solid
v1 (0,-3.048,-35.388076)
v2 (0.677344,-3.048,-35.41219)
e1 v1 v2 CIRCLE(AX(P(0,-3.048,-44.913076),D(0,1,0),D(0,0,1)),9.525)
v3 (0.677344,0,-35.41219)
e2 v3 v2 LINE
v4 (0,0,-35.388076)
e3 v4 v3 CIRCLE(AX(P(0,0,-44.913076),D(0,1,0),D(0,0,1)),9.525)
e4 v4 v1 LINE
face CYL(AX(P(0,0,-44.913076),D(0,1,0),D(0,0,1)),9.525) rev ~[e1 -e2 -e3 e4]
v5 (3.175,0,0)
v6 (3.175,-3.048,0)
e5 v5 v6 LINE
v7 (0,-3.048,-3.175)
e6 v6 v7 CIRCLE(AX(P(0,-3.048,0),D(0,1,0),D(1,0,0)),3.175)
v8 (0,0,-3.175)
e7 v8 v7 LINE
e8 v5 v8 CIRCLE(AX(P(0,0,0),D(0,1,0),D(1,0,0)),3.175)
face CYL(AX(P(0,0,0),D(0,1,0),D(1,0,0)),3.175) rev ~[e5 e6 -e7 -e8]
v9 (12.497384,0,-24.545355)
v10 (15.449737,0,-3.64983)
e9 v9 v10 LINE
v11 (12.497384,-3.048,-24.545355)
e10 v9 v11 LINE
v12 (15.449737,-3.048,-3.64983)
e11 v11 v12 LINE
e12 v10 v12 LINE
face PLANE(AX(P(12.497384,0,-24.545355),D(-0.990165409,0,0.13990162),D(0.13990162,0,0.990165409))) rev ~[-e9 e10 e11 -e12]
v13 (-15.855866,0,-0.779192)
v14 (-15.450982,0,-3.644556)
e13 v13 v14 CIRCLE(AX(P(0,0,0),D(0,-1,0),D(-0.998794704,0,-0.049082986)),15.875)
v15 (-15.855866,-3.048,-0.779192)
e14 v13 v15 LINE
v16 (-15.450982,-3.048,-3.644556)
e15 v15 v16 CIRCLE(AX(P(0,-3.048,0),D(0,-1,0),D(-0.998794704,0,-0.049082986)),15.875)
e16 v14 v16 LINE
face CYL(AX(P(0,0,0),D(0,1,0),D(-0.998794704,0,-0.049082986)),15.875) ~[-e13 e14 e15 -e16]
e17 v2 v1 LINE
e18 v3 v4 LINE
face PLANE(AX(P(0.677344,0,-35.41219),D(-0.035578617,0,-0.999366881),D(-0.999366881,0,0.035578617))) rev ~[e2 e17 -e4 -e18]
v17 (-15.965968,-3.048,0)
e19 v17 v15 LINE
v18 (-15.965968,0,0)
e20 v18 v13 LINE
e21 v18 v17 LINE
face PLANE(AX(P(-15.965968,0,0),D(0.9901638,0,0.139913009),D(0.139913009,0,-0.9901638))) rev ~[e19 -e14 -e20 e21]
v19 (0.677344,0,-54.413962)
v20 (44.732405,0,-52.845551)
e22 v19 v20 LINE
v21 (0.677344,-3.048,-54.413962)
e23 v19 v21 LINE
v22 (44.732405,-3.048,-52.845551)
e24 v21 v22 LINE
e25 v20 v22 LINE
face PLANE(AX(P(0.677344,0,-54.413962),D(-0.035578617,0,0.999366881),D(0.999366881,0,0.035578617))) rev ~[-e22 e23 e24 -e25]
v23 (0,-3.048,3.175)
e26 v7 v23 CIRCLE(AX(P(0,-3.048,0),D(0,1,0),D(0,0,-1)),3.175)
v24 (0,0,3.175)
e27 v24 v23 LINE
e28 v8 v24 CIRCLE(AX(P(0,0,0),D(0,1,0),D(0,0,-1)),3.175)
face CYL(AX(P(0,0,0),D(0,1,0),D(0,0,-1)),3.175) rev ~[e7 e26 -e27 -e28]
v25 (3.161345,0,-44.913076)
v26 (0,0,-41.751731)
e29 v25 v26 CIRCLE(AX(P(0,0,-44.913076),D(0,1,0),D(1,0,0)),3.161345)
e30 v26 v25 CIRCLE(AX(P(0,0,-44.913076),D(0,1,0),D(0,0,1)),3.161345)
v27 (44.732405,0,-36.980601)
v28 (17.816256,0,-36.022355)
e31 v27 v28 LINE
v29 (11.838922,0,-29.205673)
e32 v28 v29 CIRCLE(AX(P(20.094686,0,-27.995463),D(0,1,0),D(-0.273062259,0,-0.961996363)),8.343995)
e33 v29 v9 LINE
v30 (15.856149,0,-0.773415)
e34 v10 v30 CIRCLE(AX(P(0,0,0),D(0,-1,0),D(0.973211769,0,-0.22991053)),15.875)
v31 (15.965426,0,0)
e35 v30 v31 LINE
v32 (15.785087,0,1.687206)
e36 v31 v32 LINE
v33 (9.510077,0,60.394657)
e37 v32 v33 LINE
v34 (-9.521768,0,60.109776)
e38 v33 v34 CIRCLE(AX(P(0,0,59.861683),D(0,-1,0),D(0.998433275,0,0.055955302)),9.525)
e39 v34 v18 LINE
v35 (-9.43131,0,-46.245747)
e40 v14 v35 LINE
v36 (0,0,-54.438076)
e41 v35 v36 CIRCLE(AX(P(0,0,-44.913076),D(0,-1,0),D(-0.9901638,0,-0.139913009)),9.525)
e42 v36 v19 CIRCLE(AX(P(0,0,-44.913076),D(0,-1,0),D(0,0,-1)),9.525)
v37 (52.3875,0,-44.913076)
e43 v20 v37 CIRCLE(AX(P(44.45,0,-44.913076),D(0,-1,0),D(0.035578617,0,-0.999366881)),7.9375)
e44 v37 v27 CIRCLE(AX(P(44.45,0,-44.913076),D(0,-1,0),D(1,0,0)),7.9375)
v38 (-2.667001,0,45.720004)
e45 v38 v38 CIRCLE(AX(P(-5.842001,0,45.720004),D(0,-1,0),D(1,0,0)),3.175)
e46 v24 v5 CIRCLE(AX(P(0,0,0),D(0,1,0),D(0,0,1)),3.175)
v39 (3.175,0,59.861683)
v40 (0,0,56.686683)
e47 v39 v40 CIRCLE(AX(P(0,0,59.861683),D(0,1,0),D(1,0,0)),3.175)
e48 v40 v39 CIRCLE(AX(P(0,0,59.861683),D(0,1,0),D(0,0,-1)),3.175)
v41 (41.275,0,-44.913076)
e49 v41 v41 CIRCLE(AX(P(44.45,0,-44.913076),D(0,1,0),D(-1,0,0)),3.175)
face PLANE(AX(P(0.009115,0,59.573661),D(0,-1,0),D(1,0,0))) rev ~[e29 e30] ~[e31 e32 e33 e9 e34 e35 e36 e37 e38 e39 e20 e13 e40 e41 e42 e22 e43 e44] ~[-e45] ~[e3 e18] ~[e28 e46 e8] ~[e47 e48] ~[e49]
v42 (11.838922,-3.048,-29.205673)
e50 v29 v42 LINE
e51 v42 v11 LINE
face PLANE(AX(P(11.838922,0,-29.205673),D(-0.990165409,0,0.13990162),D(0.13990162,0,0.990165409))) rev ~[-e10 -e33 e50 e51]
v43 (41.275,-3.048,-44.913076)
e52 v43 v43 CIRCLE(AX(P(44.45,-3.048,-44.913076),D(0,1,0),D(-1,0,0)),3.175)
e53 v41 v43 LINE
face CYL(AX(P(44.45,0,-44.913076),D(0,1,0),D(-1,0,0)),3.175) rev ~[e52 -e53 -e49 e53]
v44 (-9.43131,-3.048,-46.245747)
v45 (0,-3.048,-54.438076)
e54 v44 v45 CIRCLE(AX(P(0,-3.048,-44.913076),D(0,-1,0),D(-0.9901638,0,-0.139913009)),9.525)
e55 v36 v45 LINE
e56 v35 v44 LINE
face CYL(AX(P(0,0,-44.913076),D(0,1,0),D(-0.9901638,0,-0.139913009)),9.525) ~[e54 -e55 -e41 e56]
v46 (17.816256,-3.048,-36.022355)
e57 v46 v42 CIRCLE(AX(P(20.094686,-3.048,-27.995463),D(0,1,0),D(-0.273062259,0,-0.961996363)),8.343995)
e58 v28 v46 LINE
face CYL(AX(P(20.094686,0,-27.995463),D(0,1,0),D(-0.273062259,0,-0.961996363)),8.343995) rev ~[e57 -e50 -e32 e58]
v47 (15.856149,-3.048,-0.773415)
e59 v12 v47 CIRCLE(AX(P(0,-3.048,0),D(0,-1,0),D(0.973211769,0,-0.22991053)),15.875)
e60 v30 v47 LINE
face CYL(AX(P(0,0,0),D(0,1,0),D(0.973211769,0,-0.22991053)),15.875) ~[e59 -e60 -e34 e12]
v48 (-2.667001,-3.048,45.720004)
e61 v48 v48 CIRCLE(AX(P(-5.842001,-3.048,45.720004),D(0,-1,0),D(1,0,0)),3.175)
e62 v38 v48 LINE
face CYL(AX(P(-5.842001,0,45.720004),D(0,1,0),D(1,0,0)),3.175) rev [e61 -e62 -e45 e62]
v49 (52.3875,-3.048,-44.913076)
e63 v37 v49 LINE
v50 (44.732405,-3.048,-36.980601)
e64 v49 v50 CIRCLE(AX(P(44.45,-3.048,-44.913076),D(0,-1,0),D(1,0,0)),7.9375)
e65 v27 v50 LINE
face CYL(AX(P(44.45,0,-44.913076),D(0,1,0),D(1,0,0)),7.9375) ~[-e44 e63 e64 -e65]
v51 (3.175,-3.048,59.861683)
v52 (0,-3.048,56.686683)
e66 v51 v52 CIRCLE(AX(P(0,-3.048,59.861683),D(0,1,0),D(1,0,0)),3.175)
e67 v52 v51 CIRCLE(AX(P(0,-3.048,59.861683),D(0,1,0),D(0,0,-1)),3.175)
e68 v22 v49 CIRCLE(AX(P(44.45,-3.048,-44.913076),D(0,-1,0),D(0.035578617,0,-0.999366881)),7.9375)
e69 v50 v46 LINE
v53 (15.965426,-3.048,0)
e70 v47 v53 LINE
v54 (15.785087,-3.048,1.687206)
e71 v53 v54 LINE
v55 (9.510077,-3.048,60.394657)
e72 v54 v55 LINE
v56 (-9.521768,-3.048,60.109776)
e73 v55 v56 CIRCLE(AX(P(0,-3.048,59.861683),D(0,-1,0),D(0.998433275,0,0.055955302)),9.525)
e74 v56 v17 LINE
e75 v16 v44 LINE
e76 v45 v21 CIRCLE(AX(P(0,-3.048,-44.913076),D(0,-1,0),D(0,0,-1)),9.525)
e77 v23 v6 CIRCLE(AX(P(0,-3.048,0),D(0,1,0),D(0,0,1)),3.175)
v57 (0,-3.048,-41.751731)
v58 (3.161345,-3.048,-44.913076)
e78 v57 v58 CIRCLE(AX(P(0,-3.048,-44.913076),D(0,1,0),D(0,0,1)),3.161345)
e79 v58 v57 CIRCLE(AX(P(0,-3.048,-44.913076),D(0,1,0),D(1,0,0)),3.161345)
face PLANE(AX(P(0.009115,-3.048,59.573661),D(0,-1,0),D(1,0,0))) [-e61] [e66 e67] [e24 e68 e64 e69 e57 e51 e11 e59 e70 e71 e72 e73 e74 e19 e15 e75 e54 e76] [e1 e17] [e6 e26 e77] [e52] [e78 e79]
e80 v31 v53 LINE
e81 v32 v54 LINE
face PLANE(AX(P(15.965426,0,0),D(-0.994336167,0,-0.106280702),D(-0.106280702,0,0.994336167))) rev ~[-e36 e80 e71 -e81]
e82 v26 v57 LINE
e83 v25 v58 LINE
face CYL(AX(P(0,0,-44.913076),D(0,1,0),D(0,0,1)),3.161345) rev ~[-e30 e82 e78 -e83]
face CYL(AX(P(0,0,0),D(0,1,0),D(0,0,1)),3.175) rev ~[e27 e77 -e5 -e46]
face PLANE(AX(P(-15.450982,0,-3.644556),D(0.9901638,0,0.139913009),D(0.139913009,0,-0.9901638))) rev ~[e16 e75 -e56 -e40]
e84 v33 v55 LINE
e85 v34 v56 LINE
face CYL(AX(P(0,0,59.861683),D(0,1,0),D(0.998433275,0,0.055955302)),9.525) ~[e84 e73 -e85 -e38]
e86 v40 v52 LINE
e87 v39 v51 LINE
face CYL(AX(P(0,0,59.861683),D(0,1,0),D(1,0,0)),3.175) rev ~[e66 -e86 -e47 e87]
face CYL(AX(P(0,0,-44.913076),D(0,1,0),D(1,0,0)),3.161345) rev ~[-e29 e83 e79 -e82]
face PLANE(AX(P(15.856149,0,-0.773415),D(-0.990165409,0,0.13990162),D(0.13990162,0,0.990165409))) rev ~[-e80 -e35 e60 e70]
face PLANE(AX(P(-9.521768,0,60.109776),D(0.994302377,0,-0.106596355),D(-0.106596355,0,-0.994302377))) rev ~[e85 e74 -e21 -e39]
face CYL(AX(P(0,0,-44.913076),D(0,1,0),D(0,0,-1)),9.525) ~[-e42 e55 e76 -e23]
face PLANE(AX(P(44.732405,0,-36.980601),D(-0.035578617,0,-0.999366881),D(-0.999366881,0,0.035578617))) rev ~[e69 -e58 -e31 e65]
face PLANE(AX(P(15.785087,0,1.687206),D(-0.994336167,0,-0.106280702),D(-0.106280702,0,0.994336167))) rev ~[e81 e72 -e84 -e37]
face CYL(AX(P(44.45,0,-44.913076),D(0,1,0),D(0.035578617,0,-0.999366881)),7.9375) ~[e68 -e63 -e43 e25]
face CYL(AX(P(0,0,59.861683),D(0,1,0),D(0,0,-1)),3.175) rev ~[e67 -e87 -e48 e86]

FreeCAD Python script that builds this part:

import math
import FreeCAD as App
import Part
import Sketcher

V = App.Vector
Q = App.Units.Quantity

doc = App.newDocument("Part")
body = doc.addObject("PartDesign::Body", "Body")

sketch1 = body.newObject("Sketcher::SketchObject", "Sketch")
sketch1.AttachmentSupport = (doc.getObject("XZ_Plane"), [""])
sketch1.MapMode = "FlatFace"
sketch1.addGeometry([
    Part.LineSegment(V(-15.5, -3.6, 0), V(-9.4, -46.2, 0)),
    Part.ArcOfCircle(Part.Circle(V(0, -44.9, 0), V(0, 0, 1), 9.5), math.radians(-172), math.radians(-90)),
    Part.ArcOfCircle(Part.Circle(V(0, -44.9, 0), V(0, 0, 1), 9.5), math.radians(-90), math.radians(-85.92)),
    Part.LineSegment(V(0.7, -54.4, 0), V(44.7, -52.8, 0)),
    Part.ArcOfCircle(Part.Circle(V(44.5, -44.9, 0), V(0, 0, 1), 7.9), math.radians(-88), math.radians(0)),
    Part.ArcOfCircle(Part.Circle(V(44.5, -44.9, 0), V(0, 0, 1), 7.9), math.radians(0), math.radians(88)),
    Part.LineSegment(V(44.7, -37, 0), V(17.8, -36, 0)),
    Part.ArcOfCircle(Part.Circle(V(20.1, -28, 0), V(0, 0, 1), 8.3), math.radians(-172), math.radians(-106)),
    Part.LineSegment(V(11.8, -29.2, 0), V(12.5, -24.5, 0)),
    Part.LineSegment(V(12.5, -24.5, 0), V(15.4, -3.6, 0)),
    Part.ArcOfCircle(Part.Circle(V(0, 0, 0), V(0, 0, 1), 15.9), math.radians(-13.29), math.radians(-2.79)),
    Part.LineSegment(V(15.9, -0.8, 0), V(16, 0, 0)),
    Part.LineSegment(V(16, 0, 0), V(15.8, 1.7, 0)),
    Part.LineSegment(V(15.8, 1.7, 0), V(9.5, 60.4, 0)),
    Part.ArcOfCircle(Part.Circle(V(0, 59.9, 0), V(0, 0, 1), 9.5), math.radians(3), math.radians(179)),
    Part.LineSegment(V(-9.5, 60.1, 0), V(-16, 0, 0)),
    Part.LineSegment(V(-16, 0, 0), V(-15.9, -0.8, 0)),
    Part.ArcOfCircle(Part.Circle(V(0, 0, 0), V(0, 0, 1), 15.9), math.radians(-177.19), math.radians(-166.73)),
    Part.ArcOfCircle(Part.Circle(V(0, -44.9, 0), V(0, 0, 1), 3.2), math.radians(0), math.radians(90)),
    Part.ArcOfCircle(Part.Circle(V(0, -44.9, 0), V(0, 0, 1), 3.2), math.radians(90), math.radians(360)),
    Part.LineSegment(V(0.7, -35.4, 0), V(0, -35.4, 0)),
    Part.ArcOfCircle(Part.Circle(V(0, -44.9, 0), V(0, 0, 1), 9.5), math.radians(85.92), math.radians(90)),
    Part.ArcOfCircle(Part.Circle(V(0, 0, 0), V(0, 0, 1), 3.2), math.radians(0), math.radians(90)),
    Part.ArcOfCircle(Part.Circle(V(0, 0, 0), V(0, 0, 1), 3.2), math.radians(-90), math.radians(0)),
    Part.ArcOfCircle(Part.Circle(V(0, 0, 0), V(0, 0, 1), 3.2), math.radians(90), math.radians(270)),
    Part.Circle(V(44.5, -44.9, 0), V(0, 0, 1), 3.2),
    Part.Circle(V(-5.8, 45.7, 0), V(0, 0, 1), 3.2),
    Part.ArcOfCircle(Part.Circle(V(0, 59.9, 0), V(0, 0, 1), 3.2), math.radians(0), math.radians(270)),
    Part.ArcOfCircle(Part.Circle(V(0, 59.9, 0), V(0, 0, 1), 3.2), math.radians(-90), math.radians(0)),
], False)
sketch1.addConstraint([
    Sketcher.Constraint("Tangent", 0, 2, 1, 1),
    Sketcher.Constraint("Tangent", 1, 2, 2, 1),
    Sketcher.Constraint("Coincident", 2, 2, 3, 1),
    Sketcher.Constraint("Tangent", 3, 2, 4, 1),
    Sketcher.Constraint("Tangent", 4, 2, 5, 1),
    Sketcher.Constraint("Tangent", 5, 2, 6, 1),
    Sketcher.Constraint("Coincident", 6, 2, 7, 2),
    Sketcher.Constraint("Coincident", 7, 1, 8, 1),
    Sketcher.Constraint("Coincident", 8, 2, 9, 1),
    Sketcher.Constraint("Coincident", 9, 2, 10, 1),
    Sketcher.Constraint("Coincident", 10, 2, 11, 1),
    Sketcher.Constraint("Coincident", 11, 2, 12, 1),
    Sketcher.Constraint("Coincident", 12, 2, 13, 1),
    Sketcher.Constraint("Coincident", 13, 2, 14, 1),
    Sketcher.Constraint("Coincident", 14, 2, 15, 1),
    Sketcher.Constraint("Coincident", 15, 2, 16, 1),
    Sketcher.Constraint("Coincident", 16, 2, 17, 1),
    Sketcher.Constraint("Coincident", 17, 2, 0, 1),
    Sketcher.Constraint("Tangent", 18, 1, 19, 2),
    Sketcher.Constraint("Coincident", 19, 1, 18, 2),
    Sketcher.Constraint("Coincident", 20, 1, 21, 1),
    Sketcher.Constraint("Coincident", 21, 2, 20, 2),
    Sketcher.Constraint("Tangent", 22, 1, 23, 2),
    Sketcher.Constraint("Tangent", 23, 1, 24, 2),
    Sketcher.Constraint("Tangent", 24, 1, 22, 2),
    Sketcher.Constraint("Tangent", 27, 1, 28, 2),
    Sketcher.Constraint("Coincident", 28, 1, 27, 2),
    Sketcher.Constraint("Coincident", 10, 3, -1, 1),
    Sketcher.Constraint("Coincident", 17, 3, -1, 1),
    Sketcher.Constraint("Coincident", 22, 3, -1, 1),
    Sketcher.Constraint("Coincident", 18, 3, 1, 3),
    Sketcher.Constraint("Coincident", 21, 3, 1, 3),
    Sketcher.Constraint("Coincident", 25, 3, 4, 3),
    Sketcher.Constraint("Coincident", 27, 3, 14, 3),
    Sketcher.Constraint("Equal", 1, 2),
    Sketcher.Constraint("Equal", 4, 5),
    Sketcher.Constraint("Equal", 2, 14),
    Sketcher.Constraint("Equal", 10, 17),
    Sketcher.Constraint("Equal", 14, 21),
    Sketcher.Constraint("Equal", 24, 25),
    Sketcher.Constraint("Equal", 25, 26),
    Sketcher.Constraint("Equal", 26, 27),
    Sketcher.Constraint("PointOnObject", 1, 3, -2),
    Sketcher.Constraint("PointOnObject", 14, 3, -2),
    Sketcher.Constraint("PointOnObject", 1, 2, -2),
    Sketcher.Constraint("PointOnObject", 11, 2, -1),
    Sketcher.Constraint("PointOnObject", 15, 2, -1),
    Sketcher.Constraint("PointOnObject", 19, 1, -2),
    Sketcher.Constraint("PointOnObject", 21, 2, -2),
    Sketcher.Constraint("PointOnObject", 22, 1, -1),
    Sketcher.Constraint("PointOnObject", 23, 1, -2),
    Sketcher.Constraint("PointOnObject", 24, 1, -2),
    Sketcher.Constraint("PointOnObject", 28, 1, -2),
    Sketcher.Constraint("Parallel", 8, 9),
    Sketcher.Constraint("Parallel", 9, 11),
    Sketcher.Constraint("Parallel", 12, 13),
    Sketcher.Constraint("Parallel", 0, 16),
    Sketcher.Constraint("Parallel", 6, 20),
    Sketcher.Constraint("Horizontal", 2, 3, 4, 3),
    Sketcher.Constraint("Horizontal", 25, 3, 4, 2),
    Sketcher.Constraint("Horizontal", 4, 2, 18, 1),
    Sketcher.Constraint("Horizontal", 28, 3, 27, 1),
    Sketcher.Constraint("Vertical", 3, 2, 5, 2),
    Sketcher.Constraint("Vertical", 2, 2, 20, 1),
    Sketcher.Constraint("Diameter", 25, Q("0.25 in")),
    Sketcher.Constraint("Radius", 1, Q("0.375 in")),
    Sketcher.Constraint("Radius", 4, Q("0.3125 in")),
    Sketcher.Constraint("Radius", 10, Q("0.625 in")),
    Sketcher.Constraint("DistanceY", -1, 1, 26, 3, Q("1.8000001 in")),
    Sketcher.Constraint("DistanceX", -1, 1, 4, 3, Q("1.75 in")),
    Sketcher.Constraint("DistanceX", 26, 3, -1, 1, Q("0.23 in")),
    Sketcher.Constraint("Radius", 7, 8.343995),
    Sketcher.Constraint("Radius", 18, 3.161345),
    Sketcher.Constraint("DistanceX", 12, 2, 11, 2, Q("0.0071 in")),
    Sketcher.Constraint("Distance", 6, 26.933201),
    Sketcher.Constraint("DistanceY", 5, 2, -1, 1, 36.980601),
    Sketcher.Constraint("DistanceY", 6, 2, 8, 2, 11.477001),
    Sketcher.Constraint("Distance", 0, 43.024388),
    Sketcher.Constraint("Distance", 15, 60.454221),
    Sketcher.Constraint("DistanceY", 9, 2, -1, 1, 3.64983),
    Sketcher.Constraint("DistanceX", -1, 1, 10, 2, 15.856149),
    Sketcher.Constraint("DistanceX", 14, 2, -1, 1, 9.521768),
    Sketcher.Constraint("DistanceX", 15, 2, -1, 1, 15.965968),
    Sketcher.Constraint("DistanceX", 7, 3, 3, 2, 24.637719),
    Sketcher.Constraint("DistanceY", 7, 1, 7, 3, 1.21021),
    Sketcher.Constraint("DistanceX", 13, 2, 12, 2, 6.27501),
])
pad1 = body.newObject("PartDesign::Pad", "Pad")
pad1.Profile = sketch1
pad1.Length = Q("0.12 in")

doc.recompute()
